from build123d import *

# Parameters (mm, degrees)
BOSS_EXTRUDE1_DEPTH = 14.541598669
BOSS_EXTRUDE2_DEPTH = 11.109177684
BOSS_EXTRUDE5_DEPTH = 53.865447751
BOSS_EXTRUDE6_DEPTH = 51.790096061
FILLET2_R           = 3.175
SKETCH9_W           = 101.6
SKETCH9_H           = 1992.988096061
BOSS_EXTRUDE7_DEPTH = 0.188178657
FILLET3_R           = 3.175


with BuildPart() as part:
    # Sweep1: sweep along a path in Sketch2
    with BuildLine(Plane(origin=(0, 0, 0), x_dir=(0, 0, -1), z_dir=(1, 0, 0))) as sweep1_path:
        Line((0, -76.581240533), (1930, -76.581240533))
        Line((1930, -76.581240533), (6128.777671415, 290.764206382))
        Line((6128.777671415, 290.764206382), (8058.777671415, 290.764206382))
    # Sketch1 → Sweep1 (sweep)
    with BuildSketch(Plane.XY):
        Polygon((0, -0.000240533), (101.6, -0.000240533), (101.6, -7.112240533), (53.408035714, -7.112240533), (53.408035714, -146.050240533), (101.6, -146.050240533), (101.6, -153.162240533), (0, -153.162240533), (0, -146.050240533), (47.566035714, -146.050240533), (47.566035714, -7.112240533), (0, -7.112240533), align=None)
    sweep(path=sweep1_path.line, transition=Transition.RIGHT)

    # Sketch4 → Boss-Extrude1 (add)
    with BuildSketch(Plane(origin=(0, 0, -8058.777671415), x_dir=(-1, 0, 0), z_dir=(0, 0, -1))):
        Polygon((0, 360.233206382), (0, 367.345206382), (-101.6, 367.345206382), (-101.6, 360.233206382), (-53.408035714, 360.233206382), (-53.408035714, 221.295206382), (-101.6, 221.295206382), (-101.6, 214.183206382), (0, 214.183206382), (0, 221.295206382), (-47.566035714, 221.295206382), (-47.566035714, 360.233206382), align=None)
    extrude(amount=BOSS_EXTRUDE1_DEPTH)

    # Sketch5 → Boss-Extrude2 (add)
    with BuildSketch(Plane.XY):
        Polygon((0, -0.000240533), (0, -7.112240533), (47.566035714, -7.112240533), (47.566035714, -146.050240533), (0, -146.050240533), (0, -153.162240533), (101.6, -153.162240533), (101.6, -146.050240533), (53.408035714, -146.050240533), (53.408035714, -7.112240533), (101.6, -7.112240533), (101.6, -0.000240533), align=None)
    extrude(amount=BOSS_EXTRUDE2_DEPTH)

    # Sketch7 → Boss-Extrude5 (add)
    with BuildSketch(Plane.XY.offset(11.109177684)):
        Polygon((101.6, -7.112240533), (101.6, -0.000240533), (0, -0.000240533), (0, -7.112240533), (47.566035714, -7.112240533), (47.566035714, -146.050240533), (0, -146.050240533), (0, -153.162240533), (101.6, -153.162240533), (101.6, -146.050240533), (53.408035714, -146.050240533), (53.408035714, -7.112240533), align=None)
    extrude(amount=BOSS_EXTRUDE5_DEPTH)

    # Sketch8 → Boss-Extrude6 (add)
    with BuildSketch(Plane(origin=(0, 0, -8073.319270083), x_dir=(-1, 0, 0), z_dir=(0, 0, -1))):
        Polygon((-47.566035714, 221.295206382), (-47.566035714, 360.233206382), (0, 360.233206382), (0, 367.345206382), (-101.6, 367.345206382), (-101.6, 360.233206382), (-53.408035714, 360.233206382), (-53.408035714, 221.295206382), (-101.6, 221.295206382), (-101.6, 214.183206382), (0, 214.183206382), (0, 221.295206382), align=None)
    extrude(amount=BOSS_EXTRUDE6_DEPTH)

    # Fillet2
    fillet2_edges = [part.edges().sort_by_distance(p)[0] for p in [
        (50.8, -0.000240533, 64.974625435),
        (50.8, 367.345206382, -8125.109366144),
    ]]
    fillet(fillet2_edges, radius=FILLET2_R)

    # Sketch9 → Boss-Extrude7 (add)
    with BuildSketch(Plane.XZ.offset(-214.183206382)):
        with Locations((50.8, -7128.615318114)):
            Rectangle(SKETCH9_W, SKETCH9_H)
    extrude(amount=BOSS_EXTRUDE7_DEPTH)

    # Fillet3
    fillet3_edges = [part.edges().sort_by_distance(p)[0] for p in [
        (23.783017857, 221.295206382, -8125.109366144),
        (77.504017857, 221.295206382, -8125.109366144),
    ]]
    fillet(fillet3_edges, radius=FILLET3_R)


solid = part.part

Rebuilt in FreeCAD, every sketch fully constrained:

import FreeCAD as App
import Part
import Sketcher

V = App.Vector
Q = App.Units.Quantity


def edges_at(feature, points):
    """Names of the edges that pass closest to the given points."""
    edges = feature.Shape.Edges
    near = lambda p: min(range(len(edges)), key=lambda i: edges[i].distToShape(Part.Vertex(*p))[0])
    return sorted({f"Edge{near(p) + 1}" for p in points})

doc = App.newDocument("Part")
body = doc.addObject("PartDesign::Body", "Body")

# Sketch on XY plane
sketch1 = doc.addObject("Sketcher::SketchObject", "Sketch")
body.addObject(sketch1)
sketch1.AttachmentSupport = (doc.XY_Plane, [""])
sketch1.MapMode = "FlatFace"
sketch1.addGeometry([
    Part.LineSegment(V(102, 0, 0), V(0, 0, 0)),  # 0
    Part.LineSegment(V(0, 0, 0), V(0, -7, 0)),  # 1
    Part.LineSegment(V(0, -7, 0), V(48, -7, 0)),  # 2
    Part.LineSegment(V(48, -7, 0), V(48, -146, 0)),  # 3
    Part.LineSegment(V(48, -146, 0), V(0, -146, 0)),  # 4
    Part.LineSegment(V(0, -146, 0), V(0, -153, 0)),  # 5
    Part.LineSegment(V(0, -153, 0), V(102, -153, 0)),  # 6
    Part.LineSegment(V(102, -153, 0), V(102, -146, 0)),  # 7
    Part.LineSegment(V(102, -146, 0), V(53, -146, 0)),  # 8
    Part.LineSegment(V(53, -146, 0), V(53, -7, 0)),  # 9
    Part.LineSegment(V(53, -7, 0), V(102, -7, 0)),  # 10
    Part.LineSegment(V(102, -7, 0), V(102, 0, 0)),  # 11
], False)
sketch1.addConstraint([
    Sketcher.Constraint("Coincident", 0, 2, 1, 1),
    Sketcher.Constraint("Coincident", 1, 2, 2, 1),
    Sketcher.Constraint("Coincident", 2, 2, 3, 1),
    Sketcher.Constraint("Coincident", 3, 2, 4, 1),
    Sketcher.Constraint("Coincident", 4, 2, 5, 1),
    Sketcher.Constraint("Coincident", 5, 2, 6, 1),
    Sketcher.Constraint("Coincident", 6, 2, 7, 1),
    Sketcher.Constraint("Coincident", 7, 2, 8, 1),
    Sketcher.Constraint("Coincident", 8, 2, 9, 1),
    Sketcher.Constraint("Coincident", 9, 2, 10, 1),
    Sketcher.Constraint("Coincident", 10, 2, 11, 1),
    Sketcher.Constraint("Coincident", 11, 2, 0, 1),
    Sketcher.Constraint("Horizontal", 0),
    Sketcher.Constraint("Vertical", 1),
    Sketcher.Constraint("Horizontal", 2),
    Sketcher.Constraint("Vertical", 3),
    Sketcher.Constraint("Horizontal", 4),
    Sketcher.Constraint("Vertical", 5),
    Sketcher.Constraint("Horizontal", 6),
    Sketcher.Constraint("Vertical", 7),
    Sketcher.Constraint("Horizontal", 8),
    Sketcher.Constraint("Vertical", 9),
    Sketcher.Constraint("Horizontal", 10),
    Sketcher.Constraint("Vertical", 11),
    Sketcher.Constraint("PointOnObject", 0, 2, -2),
    Sketcher.Constraint("PointOnObject", 4, 2, -2),
    Sketcher.Constraint("Horizontal", 4, 2, 7, 2),
    Sketcher.Constraint("Horizontal", 2, 2, 9, 2),
    Sketcher.Constraint("Vertical", 7, 2, 10, 2),
    Sketcher.Constraint("Equal", 1, 5),
    Sketcher.Constraint("DistanceX", 0, 2, 0, 1, Q("4 in")),
    Sketcher.Constraint("DistanceY", 1, 2, 1, 1, Q("0.28 in")),
    Sketcher.Constraint("DistanceY", 3, 2, 3, 1, Q("5.47 in")),
    Sketcher.Constraint("DistanceX", 3, 2, 8, 2, Q("0.23 in")),
    Sketcher.Constraint("DistanceX", 2, 1, 2, 2, Q("47.566036 mm")),
    Sketcher.Constraint("DistanceY", 0, 2, -1, 1, Q("0.000241 mm")),
])

# Sketch on YZ plane
sketch2 = doc.addObject("Sketcher::SketchObject", "Sketch001")
body.addObject(sketch2)
sketch2.AttachmentSupport = (doc.YZ_Plane, [""])
sketch2.MapMode = "FlatFace"
sketch2.addGeometry([
    Part.LineSegment(V(-77, 0, 0), V(-77, -1930, 0)),
    Part.LineSegment(V(-77, -1930, 0), V(291, -6129, 0)),
    Part.LineSegment(V(291, -6129, 0), V(291, -8059, 0)),
], False)
sketch2.addConstraint([
    Sketcher.Constraint("Coincident", 0, 2, 1, 1),
    Sketcher.Constraint("Coincident", 1, 2, 2, 1),
    Sketcher.Constraint("Vertical", 0),
    Sketcher.Constraint("Vertical", 2),
    Sketcher.Constraint("PointOnObject", 0, 1, -1),
    Sketcher.Constraint("Equal", 0, 2),
    Sketcher.Constraint("Angle", 1, Q("-85 deg")),
    Sketcher.Constraint("DistanceY", 0, 2, 0, 1, Q("1930 mm")),
    Sketcher.Constraint("Distance", 1, Q("4214.81632 mm")),
    Sketcher.Constraint("DistanceX", 0, 1, -1, 1, Q("76.581241 mm")),
])
doc.recompute()

additivepipe = doc.addObject("PartDesign::AdditivePipe", "AdditivePipe")
body.addObject(additivepipe)
additivepipe.Profile = sketch1
additivepipe.Spine = (sketch2, ["Edge1", "Edge2", "Edge3"])
additivepipe.Transition = "Right corner"

# Sketch on XY plane
sketch3 = doc.addObject("Sketcher::SketchObject", "Sketch002")
body.addObject(sketch3)
sketch3.AttachmentSupport = (doc.XY_Plane, [""])
sketch3.MapMode = "FlatFace"
sketch3.AttachmentOffset = App.Placement(V(0, 0, -8058.777671), App.Rotation())
sketch3.addGeometry([
    Part.LineSegment(V(0, 360, 0), V(0, 367, 0)),  # 0
    Part.LineSegment(V(0, 367, 0), V(102, 367, 0)),  # 1
    Part.LineSegment(V(102, 367, 0), V(102, 360, 0)),  # 2
    Part.LineSegment(V(102, 360, 0), V(53, 360, 0)),  # 3
    Part.LineSegment(V(53, 360, 0), V(53, 221, 0)),  # 4
    Part.LineSegment(V(53, 221, 0), V(102, 221, 0)),  # 5
    Part.LineSegment(V(102, 221, 0), V(102, 214, 0)),  # 6
    Part.LineSegment(V(102, 214, 0), V(0, 214, 0)),  # 7
    Part.LineSegment(V(0, 214, 0), V(0, 221, 0)),  # 8
    Part.LineSegment(V(0, 221, 0), V(48, 221, 0)),  # 9
    Part.LineSegment(V(48, 221, 0), V(48, 360, 0)),  # 10
    Part.LineSegment(V(48, 360, 0), V(0, 360, 0)),  # 11
], False)
sketch3.addConstraint([
    Sketcher.Constraint("Coincident", 0, 2, 1, 1),
    Sketcher.Constraint("Coincident", 1, 2, 2, 1),
    Sketcher.Constraint("Coincident", 2, 2, 3, 1),
    Sketcher.Constraint("Coincident", 3, 2, 4, 1),
    Sketcher.Constraint("Coincident", 4, 2, 5, 1),
    Sketcher.Constraint("Coincident", 5, 2, 6, 1),
    Sketcher.Constraint("Coincident", 6, 2, 7, 1),
    Sketcher.Constraint("Coincident", 7, 2, 8, 1),
    Sketcher.Constraint("Coincident", 8, 2, 9, 1),
    Sketcher.Constraint("Coincident", 9, 2, 10, 1),
    Sketcher.Constraint("Coincident", 10, 2, 11, 1),
    Sketcher.Constraint("Coincident", 11, 2, 0, 1),
    Sketcher.Constraint("Vertical", 0),
    Sketcher.Constraint("Horizontal", 1),
    Sketcher.Constraint("Vertical", 2),
    Sketcher.Constraint("Horizontal", 3),
    Sketcher.Constraint("Vertical", 4),
    Sketcher.Constraint("Horizontal", 5),
    Sketcher.Constraint("Vertical", 6),
    Sketcher.Constraint("Horizontal", 7),
    Sketcher.Constraint("Vertical", 8),
    Sketcher.Constraint("Horizontal", 9),
    Sketcher.Constraint("Vertical", 10),
    Sketcher.Constraint("Horizontal", 11),
    Sketcher.Constraint("PointOnObject", 0, 2, -2),
    Sketcher.Constraint("PointOnObject", 7, 2, -2),
    Sketcher.Constraint("Horizontal", 5, 2, 8, 2),
    Sketcher.Constraint("Horizontal", 3, 2, 10, 2),
    Sketcher.Constraint("Vertical", 2, 2, 5, 2),
    Sketcher.Constraint("Equal", 2, 6),
    Sketcher.Constraint("DistanceX", 1, 1, 1, 2, Q("4 in")),
    Sketcher.Constraint("DistanceY", 0, 1, 0, 2, Q("0.28 in")),
    Sketcher.Constraint("DistanceY", 4, 2, 4, 1, Q("5.47 in")),
    Sketcher.Constraint("DistanceX", 9, 2, 4, 2, Q("0.23 in")),
    Sketcher.Constraint("DistanceX", 3, 2, 3, 1, Q("48.191964 mm")),
    Sketcher.Constraint("DistanceY", -1, 1, 0, 2, Q("367.345206 mm")),
])
pad1 = doc.addObject("PartDesign::Pad", "Pad")
body.addObject(pad1)
pad1.Profile = sketch3
pad1.Length = 14.541599
pad1.Reversed = True

# Sketch on XY plane
sketch4 = doc.addObject("Sketcher::SketchObject", "Sketch003")
body.addObject(sketch4)
sketch4.AttachmentSupport = (doc.XY_Plane, [""])
sketch4.MapMode = "FlatFace"
sketch4.addGeometry([
    Part.LineSegment(V(0, 0, 0), V(0, -7, 0)),  # 0
    Part.LineSegment(V(0, -7, 0), V(48, -7, 0)),  # 1
    Part.LineSegment(V(48, -7, 0), V(48, -146, 0)),  # 2
    Part.LineSegment(V(48, -146, 0), V(0, -146, 0)),  # 3
    Part.LineSegment(V(0, -146, 0), V(0, -153, 0)),  # 4
    Part.LineSegment(V(0, -153, 0), V(102, -153, 0)),  # 5
    Part.LineSegment(V(102, -153, 0), V(102, -146, 0)),  # 6
    Part.LineSegment(V(102, -146, 0), V(53, -146, 0)),  # 7
    Part.LineSegment(V(53, -146, 0), V(53, -7, 0)),  # 8
    Part.LineSegment(V(53, -7, 0), V(102, -7, 0)),  # 9
    Part.LineSegment(V(102, -7, 0), V(102, 0, 0)),  # 10
    Part.LineSegment(V(102, 0, 0), V(0, 0, 0)),  # 11
], False)
sketch4.addConstraint([
    Sketcher.Constraint("Coincident", 0, 2, 1, 1),
    Sketcher.Constraint("Coincident", 1, 2, 2, 1),
    Sketcher.Constraint("Coincident", 2, 2, 3, 1),
    Sketcher.Constraint("Coincident", 3, 2, 4, 1),
    Sketcher.Constraint("Coincident", 4, 2, 5, 1),
    Sketcher.Constraint("Coincident", 5, 2, 6, 1),
    Sketcher.Constraint("Coincident", 6, 2, 7, 1),
    Sketcher.Constraint("Coincident", 7, 2, 8, 1),
    Sketcher.Constraint("Coincident", 8, 2, 9, 1),
    Sketcher.Constraint("Coincident", 9, 2, 10, 1),
    Sketcher.Constraint("Coincident", 10, 2, 11, 1),
    Sketcher.Constraint("Coincident", 11, 2, 0, 1),
    Sketcher.Constraint("Vertical", 0),
    Sketcher.Constraint("Horizontal", 1),
    Sketcher.Constraint("Vertical", 2),
    Sketcher.Constraint("Horizontal", 3),
    Sketcher.Constraint("Vertical", 4),
    Sketcher.Constraint("Horizontal", 5),
    Sketcher.Constraint("Vertical", 6),
    Sketcher.Constraint("Horizontal", 7),
    Sketcher.Constraint("Vertical", 8),
    Sketcher.Constraint("Horizontal", 9),
    Sketcher.Constraint("Vertical", 10),
    Sketcher.Constraint("Horizontal", 11),
    Sketcher.Constraint("PointOnObject", 0, 2, -2),
    Sketcher.Constraint("PointOnObject", 3, 2, -2),
    Sketcher.Constraint("Horizontal", 3, 2, 6, 2),
    Sketcher.Constraint("Horizontal", 1, 2, 8, 2),
    Sketcher.Constraint("Vertical", 6, 2, 9, 2),
    Sketcher.Constraint("Equal", 0, 4),
    Sketcher.Constraint("DistanceX", 5, 1, 5, 2, Q("4 in")),
    Sketcher.Constraint("DistanceY", 0, 2, 0, 1, Q("0.28 in")),
    Sketcher.Constraint("DistanceY", 2, 2, 2, 1, Q("5.47 in")),
    Sketcher.Constraint("DistanceX", 2, 2, 7, 2, Q("0.23 in")),
    Sketcher.Constraint("DistanceX", 1, 1, 1, 2, Q("47.566036 mm")),
    Sketcher.Constraint("DistanceY", 0, 2, -1, 1, Q("7.112241 mm")),
])
pad2 = doc.addObject("PartDesign::Pad", "Pad001")
body.addObject(pad2)
pad2.Profile = sketch4
pad2.Length = 11.109178

# Sketch on XY plane
sketch5 = doc.addObject("Sketcher::SketchObject", "Sketch004")
body.addObject(sketch5)
sketch5.AttachmentSupport = (doc.XY_Plane, [""])
sketch5.MapMode = "FlatFace"
sketch5.AttachmentOffset = App.Placement(V(0, 0, 11.109178), App.Rotation())
sketch5.addGeometry([
    Part.LineSegment(V(102, -7, 0), V(102, 0, 0)),  # 0
    Part.LineSegment(V(102, 0, 0), V(0, 0, 0)),  # 1
    Part.LineSegment(V(0, 0, 0), V(0, -7, 0)),  # 2
    Part.LineSegment(V(0, -7, 0), V(48, -7, 0)),  # 3
    Part.LineSegment(V(48, -7, 0), V(48, -146, 0)),  # 4
    Part.LineSegment(V(48, -146, 0), V(0, -146, 0)),  # 5
    Part.LineSegment(V(0, -146, 0), V(0, -153, 0)),  # 6
    Part.LineSegment(V(0, -153, 0), V(102, -153, 0)),  # 7
    Part.LineSegment(V(102, -153, 0), V(102, -146, 0)),  # 8
    Part.LineSegment(V(102, -146, 0), V(53, -146, 0)),  # 9
    Part.LineSegment(V(53, -146, 0), V(53, -7, 0)),  # 10
    Part.LineSegment(V(53, -7, 0), V(102, -7, 0)),  # 11
], False)
sketch5.addConstraint([
    Sketcher.Constraint("Coincident", 0, 2, 1, 1),
    Sketcher.Constraint("Coincident", 1, 2, 2, 1),
    Sketcher.Constraint("Coincident", 2, 2, 3, 1),
    Sketcher.Constraint("Coincident", 3, 2, 4, 1),
    Sketcher.Constraint("Coincident", 4, 2, 5, 1),
    Sketcher.Constraint("Coincident", 5, 2, 6, 1),
    Sketcher.Constraint("Coincident", 6, 2, 7, 1),
    Sketcher.Constraint("Coincident", 7, 2, 8, 1),
    Sketcher.Constraint("Coincident", 8, 2, 9, 1),
    Sketcher.Constraint("Coincident", 9, 2, 10, 1),
    Sketcher.Constraint("Coincident", 10, 2, 11, 1),
    Sketcher.Constraint("Coincident", 11, 2, 0, 1),
    Sketcher.Constraint("Vertical", 0),
    Sketcher.Constraint("Horizontal", 1),
    Sketcher.Constraint("Vertical", 2),
    Sketcher.Constraint("Horizontal", 3),
    Sketcher.Constraint("Vertical", 4),
    Sketcher.Constraint("Horizontal", 5),
    Sketcher.Constraint("Vertical", 6),
    Sketcher.Constraint("Horizontal", 7),
    Sketcher.Constraint("Vertical", 8),
    Sketcher.Constraint("Horizontal", 9),
    Sketcher.Constraint("Vertical", 10),
    Sketcher.Constraint("Horizontal", 11),
    Sketcher.Constraint("PointOnObject", 1, 2, -2),
    Sketcher.Constraint("PointOnObject", 5, 2, -2),
    Sketcher.Constraint("Horizontal", 5, 2, 8, 2),
    Sketcher.Constraint("Horizontal", 3, 2, 10, 2),
    Sketcher.Constraint("Vertical", 0, 2, 7, 2),
    Sketcher.Constraint("Equal", 2, 6),
    Sketcher.Constraint("DistanceX", 1, 2, 1, 1, Q("4 in")),
    Sketcher.Constraint("DistanceY", 0, 1, 0, 2, Q("0.28 in")),
    Sketcher.Constraint("DistanceY", 4, 2, 4, 1, Q("5.47 in")),
    Sketcher.Constraint("DistanceX", 4, 2, 9, 2, Q("0.23 in")),
    Sketcher.Constraint("DistanceX", 3, 1, 3, 2, Q("47.566036 mm")),
    Sketcher.Constraint("DistanceY", 0, 2, -1, 1, Q("0.000241 mm")),
])
pad3 = doc.addObject("PartDesign::Pad", "Pad002")
body.addObject(pad3)
pad3.Profile = sketch5
pad3.Length = 53.865448

# Sketch on XY plane
sketch6 = doc.addObject("Sketcher::SketchObject", "Sketch005")
body.addObject(sketch6)
sketch6.AttachmentSupport = (doc.XY_Plane, [""])
sketch6.MapMode = "FlatFace"
sketch6.AttachmentOffset = App.Placement(V(0, 0, -8073.31927), App.Rotation())
sketch6.addGeometry([
    Part.LineSegment(V(48, 221, 0), V(48, 360, 0)),  # 0
    Part.LineSegment(V(48, 360, 0), V(0, 360, 0)),  # 1
    Part.LineSegment(V(0, 360, 0), V(0, 367, 0)),  # 2
    Part.LineSegment(V(0, 367, 0), V(102, 367, 0)),  # 3
    Part.LineSegment(V(102, 367, 0), V(102, 360, 0)),  # 4
    Part.LineSegment(V(102, 360, 0), V(53, 360, 0)),  # 5
    Part.LineSegment(V(53, 360, 0), V(53, 221, 0)),  # 6
    Part.LineSegment(V(53, 221, 0), V(102, 221, 0)),  # 7
    Part.LineSegment(V(102, 221, 0), V(102, 214, 0)),  # 8
    Part.LineSegment(V(102, 214, 0), V(0, 214, 0)),  # 9
    Part.LineSegment(V(0, 214, 0), V(0, 221, 0)),  # 10
    Part.LineSegment(V(0, 221, 0), V(48, 221, 0)),  # 11
], False)
sketch6.addConstraint([
    Sketcher.Constraint("Coincident", 0, 2, 1, 1),
    Sketcher.Constraint("Coincident", 1, 2, 2, 1),
    Sketcher.Constraint("Coincident", 2, 2, 3, 1),
    Sketcher.Constraint("Coincident", 3, 2, 4, 1),
    Sketcher.Constraint("Coincident", 4, 2, 5, 1),
    Sketcher.Constraint("Coincident", 5, 2, 6, 1),
    Sketcher.Constraint("Coincident", 6, 2, 7, 1),
    Sketcher.Constraint("Coincident", 7, 2, 8, 1),
    Sketcher.Constraint("Coincident", 8, 2, 9, 1),
    Sketcher.Constraint("Coincident", 9, 2, 10, 1),
    Sketcher.Constraint("Coincident", 10, 2, 11, 1),
    Sketcher.Constraint("Coincident", 11, 2, 0, 1),
    Sketcher.Constraint("Vertical", 0),
    Sketcher.Constraint("Horizontal", 1),
    Sketcher.Constraint("Vertical", 2),
    Sketcher.Constraint("Horizontal", 3),
    Sketcher.Constraint("Vertical", 4),
    Sketcher.Constraint("Horizontal", 5),
    Sketcher.Constraint("Vertical", 6),
    Sketcher.Constraint("Horizontal", 7),
    Sketcher.Constraint("Vertical", 8),
    Sketcher.Constraint("Horizontal", 9),
    Sketcher.Constraint("Vertical", 10),
    Sketcher.Constraint("Horizontal", 11),
    Sketcher.Constraint("PointOnObject", 1, 2, -2),
    Sketcher.Constraint("PointOnObject", 9, 2, -2),
    Sketcher.Constraint("Horizontal", 1, 2, 4, 2),
    Sketcher.Constraint("Horizontal", 7, 2, 10, 2),
    Sketcher.Constraint("Vertical", 4, 2, 7, 2),
    Sketcher.Constraint("Equal", 4, 8),
    Sketcher.Constraint("DistanceX", 3, 1, 3, 2, Q("4 in")),
    Sketcher.Constraint("DistanceY", 0, 1, 0, 2, Q("5.47 in")),
    Sketcher.Constraint("DistanceY", 2, 1, 2, 2, Q("0.28 in")),
    Sketcher.Constraint("DistanceX", 0, 2, 5, 2, Q("0.23 in")),
    Sketcher.Constraint("DistanceX", 1, 2, 1, 1, Q("47.566036 mm")),
    Sketcher.Constraint("DistanceY", -1, 1, 0, 2, Q("360.233206 mm")),
])
pad4 = doc.addObject("PartDesign::Pad", "Pad003")
body.addObject(pad4)
pad4.Profile = sketch6
pad4.Length = 51.790096
pad4.Reversed = True
doc.recompute()

fillet = doc.addObject("PartDesign::Fillet", "Fillet")
body.addObject(fillet)
fillet.Base = (pad4, edges_at(pad4, [(50.8, 0, 64.975), (50.8, 367.345, -8125.109)]))
fillet.Radius = Q("0.125 in")

# Sketch on XZ plane
sketch7 = doc.addObject("Sketcher::SketchObject", "Sketch006")
body.addObject(sketch7)
sketch7.AttachmentSupport = (doc.XZ_Plane, [""])
sketch7.MapMode = "FlatFace"
sketch7.AttachmentOffset = App.Placement(V(0, 0, -214.183206), App.Rotation())
sketch7.addGeometry([
    Part.LineSegment(V(0, -6132, 0), V(0, -8125, 0)),
    Part.LineSegment(V(0, -8125, 0), V(102, -8125, 0)),
    Part.LineSegment(V(102, -8125, 0), V(102, -6132, 0)),
    Part.LineSegment(V(102, -6132, 0), V(0, -6132, 0)),
], False)
sketch7.addConstraint([
    Sketcher.Constraint("Coincident", 0, 2, 1, 1),
    Sketcher.Constraint("Coincident", 1, 2, 2, 1),
    Sketcher.Constraint("Coincident", 2, 2, 3, 1),
    Sketcher.Constraint("Coincident", 3, 2, 0, 1),
    Sketcher.Constraint("Vertical", 0),
    Sketcher.Constraint("Horizontal", 1),
    Sketcher.Constraint("Vertical", 2),
    Sketcher.Constraint("Horizontal", 3),
    Sketcher.Constraint("PointOnObject", 0, 2, -2),
    Sketcher.Constraint("DistanceX", 1, 1, 1, 2, Q("4 in")),
    Sketcher.Constraint("DistanceY", 0, 2, 0, 1, Q("1992.988096 mm")),
    Sketcher.Constraint("DistanceY", 2, 2, -1, 1, Q("6132.12127 mm")),
])
pad5 = doc.addObject("PartDesign::Pad", "Pad004")
body.addObject(pad5)
pad5.Profile = sketch7
pad5.Length = 0.188179
doc.recompute()

fillet2 = doc.addObject("PartDesign::Fillet", "Fillet001")
body.addObject(fillet2)
fillet2.Base = (pad5, edges_at(pad5, [(23.783, 221.295, -8125.109), (77.504, 221.295, -8125.109)]))
fillet2.Radius = Q("0.125 in")

doc.recompute()
